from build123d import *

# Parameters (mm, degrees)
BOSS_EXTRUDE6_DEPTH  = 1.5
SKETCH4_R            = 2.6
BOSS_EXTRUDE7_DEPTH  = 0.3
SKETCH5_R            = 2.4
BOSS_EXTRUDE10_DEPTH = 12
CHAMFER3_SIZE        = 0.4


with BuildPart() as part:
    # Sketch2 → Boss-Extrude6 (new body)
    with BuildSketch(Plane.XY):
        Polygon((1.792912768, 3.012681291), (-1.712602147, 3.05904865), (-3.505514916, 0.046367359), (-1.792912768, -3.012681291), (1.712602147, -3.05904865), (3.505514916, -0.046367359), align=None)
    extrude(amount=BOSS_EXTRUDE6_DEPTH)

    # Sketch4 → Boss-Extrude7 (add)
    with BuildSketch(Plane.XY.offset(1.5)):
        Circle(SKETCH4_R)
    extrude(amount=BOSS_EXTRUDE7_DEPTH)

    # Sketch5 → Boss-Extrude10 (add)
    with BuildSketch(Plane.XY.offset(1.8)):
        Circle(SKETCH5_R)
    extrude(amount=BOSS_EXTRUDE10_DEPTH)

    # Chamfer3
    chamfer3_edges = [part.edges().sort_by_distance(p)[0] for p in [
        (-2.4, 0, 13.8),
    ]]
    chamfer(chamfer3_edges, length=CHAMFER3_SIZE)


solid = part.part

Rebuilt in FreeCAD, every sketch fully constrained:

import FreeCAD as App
import Part
import Sketcher
from FreeCAD import Vector


def edges_at(feature, points):
    """Names of the edges that pass closest to the given points."""
    edges = feature.Shape.Edges
    near = lambda p: min(range(len(edges)), key=lambda i: edges[i].distToShape(Part.Vertex(*p))[0])
    return sorted({f"Edge{near(p) + 1}" for p in points})


def add_polygon(sketch, points):
    """Adds a closed chain of lines whose ends are joined by coincident constraints."""
    first, n = sketch.GeometryCount, len(points)
    for a, b in zip(points, points[1:] + points[:1]):
        sketch.addGeometry(Part.LineSegment(App.Vector(*a, 0), App.Vector(*b, 0)), False)
    for i in range(n):
        sketch.addConstraint(Sketcher.Constraint("Coincident", first + i, 2, first + (i + 1) % n, 1))

doc = App.newDocument("Part")
body = doc.addObject("PartDesign::Body", "Body")

# Sketch on XY plane
sketch1 = doc.addObject("Sketcher::SketchObject", "Sketch")
body.addObject(sketch1)
sketch1.AttachmentSupport = (doc.XY_Plane, [""])
sketch1.MapMode = "FlatFace"
add_polygon(sketch1, [(1.8, 3), (-1.7, 3.1), (-3.5, 0), (-1.8, -3), (1.7, -3.1), (3.5, 0)])  # lines 0-5
sketch1.addConstraint([
    Sketcher.Constraint("Symmetric", 0, 2, 3, 2, -1, 1),
    Sketcher.Constraint("Symmetric", 1, 2, 4, 2, -1, 1),
    Sketcher.Constraint("Symmetric", 2, 2, 5, 2, -1, 1),
    Sketcher.Constraint("Equal", 0, 1),
    Sketcher.Constraint("Equal", 1, 2),
    Sketcher.Constraint("Distance", 0, 3.505822),
    Sketcher.Constraint("DistanceY", -1, 1, 0, 2, 3.059049),
    Sketcher.Constraint("DistanceY", 2, 2, -1, 1, 3.012681),
    Sketcher.Constraint("DistanceY", 1, 2, 0, 2, 3.012681),
])
pad1 = doc.addObject("PartDesign::Pad", "Pad")
body.addObject(pad1)
pad1.Profile = sketch1
pad1.Length = 1.5

# Sketch on XY plane
sketch2 = doc.addObject("Sketcher::SketchObject", "Sketch001")
body.addObject(sketch2)
sketch2.AttachmentSupport = (doc.XY_Plane, [""])
sketch2.MapMode = "FlatFace"
sketch2.AttachmentOffset = App.Placement(Vector(0, 0, 1.5), App.Rotation())
sketch2.addGeometry(Part.Circle(Vector(0, 0, 0), Vector(0, 0, 1), 2.6), False)
sketch2.addConstraint([
    Sketcher.Constraint("Coincident", 0, 3, -1, 1),
    Sketcher.Constraint("Diameter", 0, 5.2),
])
pad2 = doc.addObject("PartDesign::Pad", "Pad001")
body.addObject(pad2)
pad2.Profile = sketch2
pad2.Length = 0.3

# Sketch on XY plane
sketch3 = doc.addObject("Sketcher::SketchObject", "Sketch002")
body.addObject(sketch3)
sketch3.AttachmentSupport = (doc.XY_Plane, [""])
sketch3.MapMode = "FlatFace"
sketch3.AttachmentOffset = App.Placement(Vector(0, 0, 1.8), App.Rotation())
sketch3.addGeometry(Part.Circle(Vector(0, 0, 0), Vector(0, 0, 1), 2.4), False)
sketch3.addConstraint([
    Sketcher.Constraint("Coincident", 0, 3, -1, 1),
    Sketcher.Constraint("Diameter", 0, 4.8),
])
pad3 = doc.addObject("PartDesign::Pad", "Pad002")
body.addObject(pad3)
pad3.Profile = sketch3
pad3.Length = 12
doc.recompute()

chamfer = doc.addObject("PartDesign::Chamfer", "Chamfer")
body.addObject(chamfer)
chamfer.Base = (pad3, edges_at(pad3, [(-2.4, 0, 13.8)]))
chamfer.Size = 0.4

doc.recompute()
